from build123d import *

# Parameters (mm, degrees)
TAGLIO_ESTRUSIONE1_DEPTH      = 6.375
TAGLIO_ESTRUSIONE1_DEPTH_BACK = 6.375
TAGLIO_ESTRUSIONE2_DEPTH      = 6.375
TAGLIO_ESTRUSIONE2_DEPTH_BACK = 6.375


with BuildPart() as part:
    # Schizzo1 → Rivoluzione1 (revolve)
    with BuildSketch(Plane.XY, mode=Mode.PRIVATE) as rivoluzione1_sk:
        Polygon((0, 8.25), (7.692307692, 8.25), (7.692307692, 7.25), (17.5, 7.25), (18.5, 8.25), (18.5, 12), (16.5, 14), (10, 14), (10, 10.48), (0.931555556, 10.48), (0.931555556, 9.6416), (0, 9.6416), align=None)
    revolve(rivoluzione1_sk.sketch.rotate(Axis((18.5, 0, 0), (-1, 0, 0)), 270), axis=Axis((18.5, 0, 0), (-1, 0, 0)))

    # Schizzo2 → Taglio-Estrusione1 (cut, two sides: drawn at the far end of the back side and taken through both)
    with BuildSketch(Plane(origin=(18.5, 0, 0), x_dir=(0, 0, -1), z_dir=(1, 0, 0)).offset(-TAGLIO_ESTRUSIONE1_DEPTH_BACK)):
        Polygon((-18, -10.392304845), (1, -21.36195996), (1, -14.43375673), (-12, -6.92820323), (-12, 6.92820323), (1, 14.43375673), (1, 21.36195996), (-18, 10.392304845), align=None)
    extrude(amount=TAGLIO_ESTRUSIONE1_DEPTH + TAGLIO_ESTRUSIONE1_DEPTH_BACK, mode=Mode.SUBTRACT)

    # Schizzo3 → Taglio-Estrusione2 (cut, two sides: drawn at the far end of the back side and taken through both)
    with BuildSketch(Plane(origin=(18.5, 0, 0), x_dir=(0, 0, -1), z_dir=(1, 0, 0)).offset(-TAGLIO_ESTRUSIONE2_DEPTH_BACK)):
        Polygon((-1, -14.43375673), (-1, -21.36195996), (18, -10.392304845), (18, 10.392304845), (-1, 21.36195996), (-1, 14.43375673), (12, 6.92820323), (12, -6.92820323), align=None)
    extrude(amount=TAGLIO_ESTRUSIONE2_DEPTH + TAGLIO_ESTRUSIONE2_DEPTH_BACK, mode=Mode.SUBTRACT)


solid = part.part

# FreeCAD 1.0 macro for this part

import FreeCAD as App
import Part
import Sketcher
Q = App.Units.Quantity


def add_polygon(sketch, points):
    """Adds a closed chain of lines whose ends are joined by coincident constraints."""
    first, n = sketch.GeometryCount, len(points)
    for a, b in zip(points, points[1:] + points[:1]):
        sketch.addGeometry(Part.LineSegment(App.Vector(*a, 0), App.Vector(*b, 0)), False)
    for i in range(n):
        sketch.addConstraint(Sketcher.Constraint("Coincident", first + i, 2, first + (i + 1) % n, 1))

doc = App.newDocument("Part")
params = doc.addObject("Spreadsheet::Sheet", "Params")
for row, (alias, value) in enumerate([
    ("sketch1_height", "1 mm"),
    ("sketch1_width", "6.5 mm"),
    ("sketch1_height2", "3.75 mm"),
    ("sketch1_height3", "3.52 mm"),
    ("revolution_angle", "360 deg"),
    ("pocket1_length", "6.375 mm"),
    ("pocket1_length2", "6.375 mm"),
    ("pocket2_length", "6.375 mm"),
    ("pocket2_length2", "6.375 mm"),
], start=1):
    params.set(f"A{row}", alias)
    params.set(f"B{row}", "=" + value)
    params.setAlias(f"B{row}", alias)

body = doc.addObject("PartDesign::Body", "Body")

sketch1 = body.newObject("Sketcher::SketchObject", "Sketch")
sketch1.AttachmentSupport = (doc.getObject("XY_Plane"), [""])
sketch1.MapMode = "FlatFace"
add_polygon(sketch1, [(0, 8.2), (7.7, 8.2), (7.7, 7.2), (17.5, 7.2), (18.5, 8.2), (18.5, 12), (16.5, 14), (10, 14), (10, 10.5), (0.9, 10.5), (0.9, 9.6), (0, 9.6)])
sketch1.addConstraint(Sketcher.Constraint("Horizontal", 0))
sketch1.addConstraint(Sketcher.Constraint("Vertical", 1))
sketch1.addConstraint(Sketcher.Constraint("Horizontal", 2))
sketch1.addConstraint(Sketcher.Constraint("Vertical", 4))
sketch1.addConstraint(Sketcher.Constraint("Horizontal", 6))
sketch1.addConstraint(Sketcher.Constraint("Vertical", 7))
sketch1.addConstraint(Sketcher.Constraint("Horizontal", 8))
sketch1.addConstraint(Sketcher.Constraint("Vertical", 9))
sketch1.addConstraint(Sketcher.Constraint("Horizontal", 10))
sketch1.addConstraint(Sketcher.Constraint("Vertical", 11))
sketch1.addConstraint(Sketcher.Constraint("PointOnObject", 10, 2, -2))
sketch1.addConstraint(Sketcher.Constraint("Perpendicular", 3, 5))
sketch1.addConstraint(Sketcher.Constraint("Horizontal", 0, 2, 3, 2))
sketch1.addConstraint(Sketcher.Constraint("DistanceY", 1, 2, 1, 1, 1.0))
sketch1.addConstraint(Sketcher.Constraint("Angle", 3, Q("45 deg")))
sketch1.addConstraint(Sketcher.Constraint("DistanceX", 6, 2, 6, 1, 6.5))
sketch1.addConstraint(Sketcher.Constraint("DistanceY", -1, 1, 4, 2, 12.0))
sketch1.addConstraint(Sketcher.Constraint("DistanceY", -1, 1, 5, 2, 14.0))
sketch1.addConstraint(Sketcher.Constraint("DistanceX", -1, 1, 6, 2, 10.0))
sketch1.addConstraint(Sketcher.Constraint("DistanceY", 4, 1, 4, 2, 3.75))
sketch1.addConstraint(Sketcher.Constraint("DistanceY", 7, 2, 7, 1, 3.52))
sketch1.addConstraint(Sketcher.Constraint("DistanceY", 9, 2, 9, 1, 0.8384))
sketch1.addConstraint(Sketcher.Constraint("DistanceX", 0, 1, 0, 2, 7.692308))
sketch1.addConstraint(Sketcher.Constraint("DistanceX", 8, 2, 8, 1, 9.068444))
sketch1.setExpression("Constraints[25]", "Params.sketch1_height")
sketch1.setExpression("Constraints[27]", "Params.sketch1_width")
sketch1.setExpression("Constraints[31]", "Params.sketch1_height2")
sketch1.setExpression("Constraints[32]", "Params.sketch1_height3")
revolution = body.newObject("PartDesign::Revolution", "Revolution")
revolution.Profile = sketch1
revolution.ReferenceAxis = (sketch1, ["H_Axis"])
revolution.setExpression("Angle", "Params.revolution_angle")

sketch2 = body.newObject("Sketcher::SketchObject", "Sketch001")
sketch2.AttachmentSupport = (doc.getObject("YZ_Plane"), [""])
sketch2.MapMode = "FlatFace"
sketch2.AttachmentOffset = App.Placement(App.Vector(0, 0, 18.5), App.Rotation())
add_polygon(sketch2, [(-10, 18), (-21, -1), (-14, -1), (-7, 12), (7, 12), (14, -1), (21, -1), (10, 18)])
sketch2.addConstraint(Sketcher.Constraint("Horizontal", 1))
sketch2.addConstraint(Sketcher.Constraint("Horizontal", 3))
sketch2.addConstraint(Sketcher.Constraint("Horizontal", 5))
sketch2.addConstraint(Sketcher.Constraint("Horizontal", 7))
sketch2.addConstraint(Sketcher.Constraint("Symmetric", 1, 2, 4, 2, -2))
sketch2.addConstraint(Sketcher.Constraint("Parallel", 0, 2))
sketch2.addConstraint(Sketcher.Constraint("Parallel", 4, 6))
sketch2.addConstraint(Sketcher.Constraint("Equal", 1, 5))
sketch2.addConstraint(Sketcher.Constraint("Equal", 2, 4))
sketch2.addConstraint(Sketcher.Constraint("Angle", 0, Q("-120 deg")))
sketch2.addConstraint(Sketcher.Constraint("DistanceY", 0, 2, -1, 1, 1.0))
sketch2.addConstraint(Sketcher.Constraint("DistanceY", -1, 1, 2, 2, 12.0))
sketch2.addConstraint(Sketcher.Constraint("DistanceY", -1, 1, 6, 2, 18.0))
sketch2.addConstraint(Sketcher.Constraint("DistanceX", 7, 2, 7, 1, 20.78461))
sketch2.addConstraint(Sketcher.Constraint("DistanceX", 3, 2, 6, 2, 3.464102))
pocket1 = body.newObject("PartDesign::Pocket", "Pocket")
pocket1.Profile = sketch2
pocket1.Type = "TwoLengths"
pocket1.setExpression("Length", "Params.pocket1_length")
pocket1.setExpression("Length2", "Params.pocket1_length2")
pocket1.Reversed = True

sketch3 = body.newObject("Sketcher::SketchObject", "Sketch002")
sketch3.AttachmentSupport = (doc.getObject("YZ_Plane"), [""])
sketch3.MapMode = "FlatFace"
sketch3.AttachmentOffset = App.Placement(App.Vector(0, 0, 18.5), App.Rotation())
add_polygon(sketch3, [(-14, 1), (-21, 1), (-10, -18), (10, -18), (21, 1), (14, 1), (7, -12), (-7, -12)])
sketch3.addConstraint(Sketcher.Constraint("Horizontal", 0))
sketch3.addConstraint(Sketcher.Constraint("Horizontal", 2))
sketch3.addConstraint(Sketcher.Constraint("Horizontal", 4))
sketch3.addConstraint(Sketcher.Constraint("Horizontal", 6))
sketch3.addConstraint(Sketcher.Constraint("Symmetric", 0, 2, 3, 2, -2))
sketch3.addConstraint(Sketcher.Constraint("Parallel", 3, 5))
sketch3.addConstraint(Sketcher.Constraint("Parallel", 1, 7))
sketch3.addConstraint(Sketcher.Constraint("Equal", 0, 4))
sketch3.addConstraint(Sketcher.Constraint("Equal", 1, 3))
sketch3.addConstraint(Sketcher.Constraint("Angle", 1, Q("-60 deg")))
sketch3.addConstraint(Sketcher.Constraint("DistanceY", -1, 1, 0, 2, 1.0))
sketch3.addConstraint(Sketcher.Constraint("DistanceY", 1, 2, -1, 1, 18.0))
sketch3.addConstraint(Sketcher.Constraint("DistanceY", 5, 2, -1, 1, 12.0))
sketch3.addConstraint(Sketcher.Constraint("DistanceX", 2, 1, 2, 2, 20.78461))
sketch3.addConstraint(Sketcher.Constraint("DistanceX", 5, 2, 2, 2, 3.464102))
pocket2 = body.newObject("PartDesign::Pocket", "Pocket001")
pocket2.Profile = sketch3
pocket2.Type = "TwoLengths"
pocket2.setExpression("Length", "Params.pocket2_length")
pocket2.setExpression("Length2", "Params.pocket2_length2")
pocket2.Reversed = True

doc.recompute()
